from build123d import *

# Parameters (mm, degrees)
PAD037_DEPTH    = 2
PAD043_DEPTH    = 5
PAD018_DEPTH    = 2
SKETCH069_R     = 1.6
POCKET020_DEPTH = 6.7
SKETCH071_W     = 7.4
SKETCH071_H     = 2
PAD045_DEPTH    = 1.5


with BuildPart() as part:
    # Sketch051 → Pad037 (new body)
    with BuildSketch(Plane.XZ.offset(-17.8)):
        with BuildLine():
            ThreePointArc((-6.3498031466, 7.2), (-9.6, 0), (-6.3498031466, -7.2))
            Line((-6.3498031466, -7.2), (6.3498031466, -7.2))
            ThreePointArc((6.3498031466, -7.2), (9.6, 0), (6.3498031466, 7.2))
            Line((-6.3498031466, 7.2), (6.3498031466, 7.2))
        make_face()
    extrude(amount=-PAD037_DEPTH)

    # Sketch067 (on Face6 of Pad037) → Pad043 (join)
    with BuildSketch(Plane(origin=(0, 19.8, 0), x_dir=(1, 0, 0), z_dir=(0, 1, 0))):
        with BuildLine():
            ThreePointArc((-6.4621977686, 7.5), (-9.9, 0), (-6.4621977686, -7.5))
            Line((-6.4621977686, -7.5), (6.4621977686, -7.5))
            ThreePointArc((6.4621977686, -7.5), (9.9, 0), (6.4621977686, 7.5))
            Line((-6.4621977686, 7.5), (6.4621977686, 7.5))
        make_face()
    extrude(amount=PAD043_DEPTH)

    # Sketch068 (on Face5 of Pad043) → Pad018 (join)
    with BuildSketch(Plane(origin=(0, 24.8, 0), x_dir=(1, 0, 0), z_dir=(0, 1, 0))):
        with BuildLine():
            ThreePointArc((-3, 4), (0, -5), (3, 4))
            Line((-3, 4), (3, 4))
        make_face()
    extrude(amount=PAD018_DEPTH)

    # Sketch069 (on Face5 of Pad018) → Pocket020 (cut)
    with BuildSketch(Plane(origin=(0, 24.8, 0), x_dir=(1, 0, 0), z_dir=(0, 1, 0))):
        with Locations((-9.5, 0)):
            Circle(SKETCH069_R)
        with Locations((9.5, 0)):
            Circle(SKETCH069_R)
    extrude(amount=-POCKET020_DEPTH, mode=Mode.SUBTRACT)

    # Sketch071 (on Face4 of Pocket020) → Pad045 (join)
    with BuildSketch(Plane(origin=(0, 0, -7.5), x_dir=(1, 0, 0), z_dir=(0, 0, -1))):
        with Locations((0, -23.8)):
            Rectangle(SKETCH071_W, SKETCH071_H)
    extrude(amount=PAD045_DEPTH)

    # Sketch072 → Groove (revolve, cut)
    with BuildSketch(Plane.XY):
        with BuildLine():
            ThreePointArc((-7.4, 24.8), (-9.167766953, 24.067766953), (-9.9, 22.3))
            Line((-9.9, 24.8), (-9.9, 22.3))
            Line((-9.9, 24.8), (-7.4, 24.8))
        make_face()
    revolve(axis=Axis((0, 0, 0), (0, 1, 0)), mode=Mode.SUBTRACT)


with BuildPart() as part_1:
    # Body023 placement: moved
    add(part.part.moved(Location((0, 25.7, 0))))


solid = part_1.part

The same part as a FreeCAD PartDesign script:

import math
import FreeCAD as App
import Part
import Sketcher

doc = App.newDocument("Part")
body = doc.addObject("PartDesign::Body", "Body")

# Sketch on XZ plane
sketch1 = doc.addObject("Sketcher::SketchObject", "Sketch")
body.addObject(sketch1)
sketch1.AttachmentSupport = (doc.XZ_Plane, [""])
sketch1.MapMode = "FlatFace"
sketch1.AttachmentOffset = App.Placement(App.Vector(0, 0, -17.8), App.Rotation())
sketch1.addGeometry([
    Part.ArcOfCircle(Part.Circle(App.Vector(0, 0, 0), App.Vector(0, 0, 1), 10), math.radians(131), math.radians(229)),
    Part.LineSegment(App.Vector(-6, -7, 0), App.Vector(6, -7, 0)),
    Part.ArcOfCircle(Part.Circle(App.Vector(0, 0, 0), App.Vector(0, 0, 1), 10), math.radians(-49), math.radians(49)),
    Part.LineSegment(App.Vector(6, 7, 0), App.Vector(-6, 7, 0)),
], False)
sketch1.addConstraint([
    Sketcher.Constraint("Coincident", 0, 2, 1, 1),
    Sketcher.Constraint("Coincident", 1, 2, 2, 1),
    Sketcher.Constraint("Coincident", 2, 2, 3, 1),
    Sketcher.Constraint("Coincident", 3, 2, 0, 1),
    Sketcher.Constraint("Horizontal", 1),
    Sketcher.Constraint("Horizontal", 3),
    Sketcher.Constraint("Coincident", 0, 3, -1, 1),
    Sketcher.Constraint("Coincident", 2, 3, -1, 1),
    Sketcher.Constraint("Equal", 0, 2),
    Sketcher.Constraint("Vertical", 1, 2, 2, 2),
    Sketcher.Constraint("Radius", 0, 9.6),
    Sketcher.Constraint("DistanceY", 0, 2, -1, 1, 7.2),
])
pad1 = doc.addObject("PartDesign::Pad", "Pad")
body.addObject(pad1)
pad1.Profile = sketch1
pad1.Length = 2
pad1.Reversed = True

# Sketch on XZ plane
sketch2 = doc.addObject("Sketcher::SketchObject", "Sketch001")
body.addObject(sketch2)
sketch2.AttachmentSupport = (doc.XZ_Plane, [""])
sketch2.MapMode = "FlatFace"
sketch2.AttachmentOffset = App.Placement(App.Vector(0, 0, -19.8), App.Rotation())
sketch2.addGeometry([
    Part.ArcOfCircle(Part.Circle(App.Vector(0, 0, 0), App.Vector(0, 0, 1), 10), math.radians(131), math.radians(229)),
    Part.LineSegment(App.Vector(-6, 8, 0), App.Vector(6, 8, 0)),
    Part.ArcOfCircle(Part.Circle(App.Vector(0, 0, 0), App.Vector(0, 0, 1), 10), math.radians(-49), math.radians(49)),
    Part.LineSegment(App.Vector(6, -8, 0), App.Vector(-6, -8, 0)),
], False)
sketch2.addConstraint([
    Sketcher.Constraint("Coincident", 0, 1, 1, 1),
    Sketcher.Constraint("Coincident", 1, 2, 2, 2),
    Sketcher.Constraint("Coincident", 2, 1, 3, 1),
    Sketcher.Constraint("Coincident", 3, 2, 0, 2),
    Sketcher.Constraint("Horizontal", 1),
    Sketcher.Constraint("Horizontal", 3),
    Sketcher.Constraint("Coincident", 0, 3, -1, 1),
    Sketcher.Constraint("Coincident", 2, 3, -1, 1),
    Sketcher.Constraint("Equal", 0, 2),
    Sketcher.Constraint("Vertical", 1, 2, 2, 1),
    Sketcher.Constraint("Radius", 0, 9.9),
    Sketcher.Constraint("DistanceY", 2, 1, 1, 2, 15.0),
])
pad2 = doc.addObject("PartDesign::Pad", "Pad001")
body.addObject(pad2)
pad2.Profile = sketch2
pad2.Length = 5
pad2.Reversed = True

# Sketch on XZ plane
sketch3 = doc.addObject("Sketcher::SketchObject", "Sketch002")
body.addObject(sketch3)
sketch3.AttachmentSupport = (doc.XZ_Plane, [""])
sketch3.MapMode = "FlatFace"
sketch3.AttachmentOffset = App.Placement(App.Vector(0, 0, -24.8), App.Rotation())
sketch3.addGeometry([
    Part.ArcOfCircle(Part.Circle(App.Vector(0, 0, 0), App.Vector(0, 0, 1), 5), math.radians(-53), math.radians(233)),
    Part.LineSegment(App.Vector(3, -4, 0), App.Vector(-3, -4, 0)),
], False)
sketch3.addConstraint([
    Sketcher.Constraint("Coincident", 0, 1, 1, 1),
    Sketcher.Constraint("Coincident", 1, 2, 0, 2),
    Sketcher.Constraint("Horizontal", 1),
    Sketcher.Constraint("Coincident", 0, 3, -1, 1),
    Sketcher.Constraint("Radius", 0, 5.0),
    Sketcher.Constraint("DistanceX", 1, 2, 1, 1, 6.0),
])
pad3 = doc.addObject("PartDesign::Pad", "Pad002")
body.addObject(pad3)
pad3.Profile = sketch3
pad3.Length = 2
pad3.Reversed = True

# Sketch on XZ plane
sketch4 = doc.addObject("Sketcher::SketchObject", "Sketch003")
body.addObject(sketch4)
sketch4.AttachmentSupport = (doc.XZ_Plane, [""])
sketch4.MapMode = "FlatFace"
sketch4.AttachmentOffset = App.Placement(App.Vector(0, 0, -24.8), App.Rotation())
sketch4.addGeometry([
    Part.Circle(App.Vector(-9.5, 0, 0), App.Vector(0, 0, 1), 1.6),
    Part.Circle(App.Vector(9.5, 0, 0), App.Vector(0, 0, 1), 1.6),
], False)
sketch4.addConstraint([
    Sketcher.Constraint("Equal", 0, 1),
    Sketcher.Constraint("Symmetric", 0, 3, 1, 3, -1, 1),
    Sketcher.Constraint("PointOnObject", 0, 3, -1),
    Sketcher.Constraint("Diameter", 0, 3.2),
    Sketcher.Constraint("DistanceX", 0, 3, 1, 3, 19.0),
])
pocket1 = doc.addObject("PartDesign::Pocket", "Pocket")
body.addObject(pocket1)
pocket1.Profile = sketch4
pocket1.Length = 6.7
pocket1.Reversed = True

# Sketch on XY plane
sketch5 = doc.addObject("Sketcher::SketchObject", "Sketch004")
body.addObject(sketch5)
sketch5.AttachmentSupport = (doc.XY_Plane, [""])
sketch5.MapMode = "FlatFace"
sketch5.AttachmentOffset = App.Placement(App.Vector(0, 0, -7.5), App.Rotation())
sketch5.addGeometry([
    Part.LineSegment(App.Vector(-3.7, 22.8, 0), App.Vector(-3.7, 24.8, 0)),
    Part.LineSegment(App.Vector(-3.7, 24.8, 0), App.Vector(3.7, 24.8, 0)),
    Part.LineSegment(App.Vector(3.7, 24.8, 0), App.Vector(3.7, 22.8, 0)),
    Part.LineSegment(App.Vector(3.7, 22.8, 0), App.Vector(-3.7, 22.8, 0)),
], False)
sketch5.addConstraint([
    Sketcher.Constraint("Coincident", 0, 2, 1, 1),
    Sketcher.Constraint("Coincident", 1, 2, 2, 1),
    Sketcher.Constraint("Coincident", 2, 2, 3, 1),
    Sketcher.Constraint("Coincident", 3, 2, 0, 1),
    Sketcher.Constraint("Vertical", 0),
    Sketcher.Constraint("Horizontal", 1),
    Sketcher.Constraint("Vertical", 2),
    Sketcher.Constraint("Horizontal", 3),
    Sketcher.Constraint("DistanceY", 0, 1, 0, 2, 2.0),
    Sketcher.Constraint("DistanceX", 1, 1, 1, 2, 7.4),
    Sketcher.Constraint("DistanceX", 0, 2, -1, 1, 3.7),
    Sketcher.Constraint("DistanceY", -1, 1, 0, 2, 24.8),
])
pad4 = doc.addObject("PartDesign::Pad", "Pad003")
body.addObject(pad4)
pad4.Profile = sketch5
pad4.Length = 1.5
pad4.Reversed = True

# Sketch on XY plane
sketch6 = doc.addObject("Sketcher::SketchObject", "Sketch005")
body.addObject(sketch6)
sketch6.AttachmentSupport = (doc.XY_Plane, [""])
sketch6.MapMode = "FlatFace"
sketch6.addGeometry([
    Part.ArcOfCircle(Part.Circle(App.Vector(-7.4, 22.3, 0), App.Vector(0, 0, 1), 2.5), math.radians(90), math.radians(180)),
    Part.LineSegment(App.Vector(-7.4, 24.8, 0), App.Vector(-9.9, 24.8, 0)),
    Part.LineSegment(App.Vector(-9.9, 24.8, 0), App.Vector(-9.9, 22.3, 0)),
], False)
sketch6.addConstraint([
    Sketcher.Constraint("Tangent", 0, 1, 1, 1),
    Sketcher.Constraint("Coincident", 1, 2, 2, 1),
    Sketcher.Constraint("Tangent", 2, 2, 0, 2),
    Sketcher.Constraint("Horizontal", 1),
    Sketcher.Constraint("Vertical", 2),
    Sketcher.Constraint("Radius", 0, 2.5),
    Sketcher.Constraint("DistanceX", 0, 3, -1, 1, 7.4),
    Sketcher.Constraint("DistanceY", -1, 1, 0, 3, 22.3),
])
groove = doc.addObject("PartDesign::Groove", "Groove")
body.addObject(groove)
groove.Profile = sketch6
groove.ReferenceAxis = (sketch6, ["V_Axis"])
groove.Angle = 360
body2 = doc.addObject("PartDesign::Body", "Body001")
doc.recompute()

body.Placement = App.Placement(App.Vector(0, 25.7, 0), App.Rotation(App.Vector(0, 0, 1), 0))
boolean = doc.addObject("PartDesign::Boolean", "Boolean")
body2.addObject(boolean)
boolean.Type = "Fuse"
boolean.addObjects([body])

doc.recompute()
